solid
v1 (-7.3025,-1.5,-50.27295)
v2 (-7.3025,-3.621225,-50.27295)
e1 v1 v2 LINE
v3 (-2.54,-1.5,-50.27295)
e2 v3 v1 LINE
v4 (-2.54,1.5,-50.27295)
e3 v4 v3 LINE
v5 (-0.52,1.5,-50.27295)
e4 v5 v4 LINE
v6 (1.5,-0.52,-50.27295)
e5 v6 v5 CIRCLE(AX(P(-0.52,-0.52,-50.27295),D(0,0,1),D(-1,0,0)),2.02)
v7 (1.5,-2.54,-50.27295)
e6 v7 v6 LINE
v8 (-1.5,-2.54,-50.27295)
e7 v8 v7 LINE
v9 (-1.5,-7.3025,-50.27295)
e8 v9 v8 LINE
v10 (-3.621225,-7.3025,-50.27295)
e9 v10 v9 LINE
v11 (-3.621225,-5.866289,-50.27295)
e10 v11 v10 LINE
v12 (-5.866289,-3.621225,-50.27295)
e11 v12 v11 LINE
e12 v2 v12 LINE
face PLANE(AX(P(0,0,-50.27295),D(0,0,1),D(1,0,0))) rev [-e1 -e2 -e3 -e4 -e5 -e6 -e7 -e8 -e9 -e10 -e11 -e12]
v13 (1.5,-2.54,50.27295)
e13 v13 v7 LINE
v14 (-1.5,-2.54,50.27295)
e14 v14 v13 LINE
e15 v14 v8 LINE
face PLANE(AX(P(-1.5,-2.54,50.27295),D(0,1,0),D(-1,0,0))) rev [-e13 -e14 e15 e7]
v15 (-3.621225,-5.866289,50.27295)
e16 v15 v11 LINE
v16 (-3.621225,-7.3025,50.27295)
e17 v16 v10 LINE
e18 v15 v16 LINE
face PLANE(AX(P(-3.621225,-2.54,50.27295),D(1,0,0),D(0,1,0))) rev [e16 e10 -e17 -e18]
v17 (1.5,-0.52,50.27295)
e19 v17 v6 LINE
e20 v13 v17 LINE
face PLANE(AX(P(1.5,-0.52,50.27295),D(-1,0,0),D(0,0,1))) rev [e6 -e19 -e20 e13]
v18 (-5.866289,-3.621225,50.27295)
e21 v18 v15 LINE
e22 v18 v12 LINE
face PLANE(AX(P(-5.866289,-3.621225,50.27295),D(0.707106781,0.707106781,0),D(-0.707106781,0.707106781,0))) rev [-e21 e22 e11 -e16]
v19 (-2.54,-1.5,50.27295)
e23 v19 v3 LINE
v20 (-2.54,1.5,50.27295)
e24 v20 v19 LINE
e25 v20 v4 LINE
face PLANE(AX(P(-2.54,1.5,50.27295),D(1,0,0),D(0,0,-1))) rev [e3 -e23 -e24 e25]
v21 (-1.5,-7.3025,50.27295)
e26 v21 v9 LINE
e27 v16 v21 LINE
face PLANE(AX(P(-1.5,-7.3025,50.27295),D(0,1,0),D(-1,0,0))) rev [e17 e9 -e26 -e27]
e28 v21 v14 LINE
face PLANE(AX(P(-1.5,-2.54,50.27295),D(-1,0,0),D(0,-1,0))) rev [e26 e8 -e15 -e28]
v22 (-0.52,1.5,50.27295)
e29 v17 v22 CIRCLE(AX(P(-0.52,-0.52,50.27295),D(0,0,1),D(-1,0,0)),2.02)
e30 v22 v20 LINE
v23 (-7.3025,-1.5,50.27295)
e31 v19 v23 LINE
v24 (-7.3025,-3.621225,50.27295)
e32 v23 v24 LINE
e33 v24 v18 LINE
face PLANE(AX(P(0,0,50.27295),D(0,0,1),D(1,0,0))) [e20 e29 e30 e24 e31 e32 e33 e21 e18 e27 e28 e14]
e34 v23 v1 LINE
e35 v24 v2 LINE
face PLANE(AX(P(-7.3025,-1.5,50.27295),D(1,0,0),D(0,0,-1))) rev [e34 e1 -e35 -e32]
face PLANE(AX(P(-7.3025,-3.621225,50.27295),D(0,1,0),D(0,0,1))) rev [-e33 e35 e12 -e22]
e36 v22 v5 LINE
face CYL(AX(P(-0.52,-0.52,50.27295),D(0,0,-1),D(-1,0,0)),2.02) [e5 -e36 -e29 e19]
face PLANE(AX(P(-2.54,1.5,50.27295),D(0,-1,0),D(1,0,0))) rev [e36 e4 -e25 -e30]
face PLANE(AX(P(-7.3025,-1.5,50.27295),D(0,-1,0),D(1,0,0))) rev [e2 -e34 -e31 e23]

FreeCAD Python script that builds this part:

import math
import FreeCAD as App
import Part
import Sketcher
from FreeCAD import Vector
Q = App.Units.Quantity

doc = App.newDocument("Part")
body = doc.addObject("PartDesign::Body", "Body")

sketch1 = body.newObject("Sketcher::SketchObject", "Sketch")
sketch1.AttachmentSupport = (doc.getObject("XY_Plane"), [""])
sketch1.MapMode = "FlatFace"
sketch1.addGeometry(Part.LineSegment(Vector(-7.3, -1.5, 0), Vector(-7.3, -3.6, 0)), False)
sketch1.addGeometry(Part.LineSegment(Vector(-7.3, -3.6, 0), Vector(-2.5, -3.6, 0)), False)
sketch1.addGeometry(Part.LineSegment(Vector(-2.5, -3.6, 0), Vector(-2.5, -1.5, 0)), False)
sketch1.addGeometry(Part.LineSegment(Vector(-2.5, -1.5, 0), Vector(-7.3, -1.5, 0)), False)
sketch1.addConstraint(Sketcher.Constraint("Coincident", 0, 2, 1, 1))
sketch1.addConstraint(Sketcher.Constraint("Coincident", 1, 2, 2, 1))
sketch1.addConstraint(Sketcher.Constraint("Coincident", 2, 2, 3, 1))
sketch1.addConstraint(Sketcher.Constraint("Coincident", 3, 2, 0, 1))
sketch1.addConstraint(Sketcher.Constraint("Vertical", 0))
sketch1.addConstraint(Sketcher.Constraint("Horizontal", 1))
sketch1.addConstraint(Sketcher.Constraint("Vertical", 2))
sketch1.addConstraint(Sketcher.Constraint("Horizontal", 3))
sketch1.addConstraint(Sketcher.Constraint("DistanceX", 1, 2, -1, 1, Q("0.1 in")))
sketch1.addConstraint(Sketcher.Constraint("DistanceX", 1, 1, 1, 2, Q("0.1875 in")))
sketch1.addConstraint(Sketcher.Constraint("DistanceY", 2, 2, -1, 1, 1.5))
sketch1.addConstraint(Sketcher.Constraint("DistanceY", 0, 2, 0, 1, 2.121225))
pad1 = body.newObject("PartDesign::Pad", "Pad")
pad1.Profile = sketch1
pad1.Length = Q("3.9585 in")
pad1.Midplane = True

sketch2 = body.newObject("Sketcher::SketchObject", "Sketch001")
sketch2.AttachmentSupport = (doc.getObject("XY_Plane"), [""])
sketch2.MapMode = "FlatFace"
sketch2.addGeometry(Part.LineSegment(Vector(-3.6, -2.5, 0), Vector(-3.6, -7.3, 0)), False)
sketch2.addGeometry(Part.LineSegment(Vector(-3.6, -7.3, 0), Vector(-1.5, -7.3, 0)), False)
sketch2.addGeometry(Part.LineSegment(Vector(-1.5, -7.3, 0), Vector(-1.5, -2.5, 0)), False)
sketch2.addGeometry(Part.LineSegment(Vector(-1.5, -2.5, 0), Vector(-3.6, -2.5, 0)), False)
sketch2.addConstraint(Sketcher.Constraint("Coincident", 0, 2, 1, 1))
sketch2.addConstraint(Sketcher.Constraint("Coincident", 1, 2, 2, 1))
sketch2.addConstraint(Sketcher.Constraint("Coincident", 2, 2, 3, 1))
sketch2.addConstraint(Sketcher.Constraint("Coincident", 3, 2, 0, 1))
sketch2.addConstraint(Sketcher.Constraint("Vertical", 0))
sketch2.addConstraint(Sketcher.Constraint("Horizontal", 1))
sketch2.addConstraint(Sketcher.Constraint("Vertical", 2))
sketch2.addConstraint(Sketcher.Constraint("Horizontal", 3))
sketch2.addConstraint(Sketcher.Constraint("DistanceY", 2, 2, -1, 1, Q("0.1 in")))
sketch2.addConstraint(Sketcher.Constraint("DistanceY", 0, 2, 0, 1, Q("0.1875 in")))
sketch2.addConstraint(Sketcher.Constraint("DistanceX", 1, 2, -1, 1, 1.5))
sketch2.addConstraint(Sketcher.Constraint("DistanceX", 1, 1, 1, 2, 2.121225))
pad2 = body.newObject("PartDesign::Pad", "Pad001")
pad2.Profile = sketch2
pad2.Length = Q("3.9585 in")
pad2.Midplane = True

sketch3 = body.newObject("Sketcher::SketchObject", "Sketch002")
sketch3.AttachmentSupport = (doc.getObject("XY_Plane"), [""])
sketch3.MapMode = "FlatFace"
sketch3.addGeometry(Part.LineSegment(Vector(-2.5, 1.5, 0), Vector(-2.5, -1.5, 0)), False)
sketch3.addGeometry(Part.LineSegment(Vector(-2.5, -1.5, 0), Vector(-7.3, -1.5, 0)), False)
sketch3.addGeometry(Part.LineSegment(Vector(-7.3, -1.5, 0), Vector(-7.3, -3.6, 0)), False)
sketch3.addGeometry(Part.LineSegment(Vector(-7.3, -3.6, 0), Vector(-5.9, -3.6, 0)), False)
sketch3.addGeometry(Part.LineSegment(Vector(-5.9, -3.6, 0), Vector(-3.6, -5.9, 0)), False)
sketch3.addGeometry(Part.LineSegment(Vector(-3.6, -5.9, 0), Vector(-3.6, -7.3, 0)), False)
sketch3.addGeometry(Part.LineSegment(Vector(-3.6, -7.3, 0), Vector(-1.5, -7.3, 0)), False)
sketch3.addGeometry(Part.LineSegment(Vector(-1.5, -7.3, 0), Vector(-1.5, -2.5, 0)), False)
sketch3.addGeometry(Part.LineSegment(Vector(-1.5, -2.5, 0), Vector(1.5, -2.5, 0)), False)
sketch3.addGeometry(Part.LineSegment(Vector(1.5, -2.5, 0), Vector(1.5, -0.5, 0)), False)
sketch3.addGeometry(Part.ArcOfCircle(Part.Circle(Vector(-0.5, -0.5, 0), Vector(0, 0, 1), 2), math.radians(0), math.radians(90)), False)
sketch3.addGeometry(Part.LineSegment(Vector(-0.5, 1.5, 0), Vector(-2.5, 1.5, 0)), False)
sketch3.addConstraint(Sketcher.Constraint("Coincident", 0, 2, 1, 1))
sketch3.addConstraint(Sketcher.Constraint("Coincident", 1, 2, 2, 1))
sketch3.addConstraint(Sketcher.Constraint("Coincident", 2, 2, 3, 1))
sketch3.addConstraint(Sketcher.Constraint("Coincident", 3, 2, 4, 1))
sketch3.addConstraint(Sketcher.Constraint("Coincident", 4, 2, 5, 1))
sketch3.addConstraint(Sketcher.Constraint("Coincident", 5, 2, 6, 1))
sketch3.addConstraint(Sketcher.Constraint("Coincident", 6, 2, 7, 1))
sketch3.addConstraint(Sketcher.Constraint("Coincident", 7, 2, 8, 1))
sketch3.addConstraint(Sketcher.Constraint("Coincident", 8, 2, 9, 1))
sketch3.addConstraint(Sketcher.Constraint("Tangent", 9, 2, 10, 1))
sketch3.addConstraint(Sketcher.Constraint("Tangent", 10, 2, 11, 1))
sketch3.addConstraint(Sketcher.Constraint("Coincident", 11, 2, 0, 1))
sketch3.addConstraint(Sketcher.Constraint("Vertical", 0))
sketch3.addConstraint(Sketcher.Constraint("Horizontal", 1))
sketch3.addConstraint(Sketcher.Constraint("Vertical", 2))
sketch3.addConstraint(Sketcher.Constraint("Horizontal", 3))
sketch3.addConstraint(Sketcher.Constraint("Vertical", 5))
sketch3.addConstraint(Sketcher.Constraint("Horizontal", 6))
sketch3.addConstraint(Sketcher.Constraint("Vertical", 7))
sketch3.addConstraint(Sketcher.Constraint("Horizontal", 8))
sketch3.addConstraint(Sketcher.Constraint("Vertical", 9))
sketch3.addConstraint(Sketcher.Constraint("Horizontal", 11))
sketch3.addConstraint(Sketcher.Constraint("Equal", 8, 0))
sketch3.addConstraint(Sketcher.Constraint("Equal", 6, 2))
sketch3.addConstraint(Sketcher.Constraint("Equal", 3, 5))
sketch3.addConstraint(Sketcher.Constraint("Equal", 1, 7))
sketch3.addConstraint(Sketcher.Constraint("Equal", 11, 9))
sketch3.addConstraint(Sketcher.Constraint("DistanceX", 0, 2, -1, 1, Q("0.1 in")))
sketch3.addConstraint(Sketcher.Constraint("DistanceY", 7, 2, -1, 1, Q("0.1 in")))
sketch3.addConstraint(Sketcher.Constraint("DistanceX", 1, 2, 1, 1, Q("0.1875 in")))
sketch3.addConstraint(Sketcher.Constraint("Radius", 10, 2.02))
sketch3.addConstraint(Sketcher.Constraint("Distance", 4, Q("0.125 in")))
sketch3.addConstraint(Sketcher.Constraint("DistanceX", 8, 1, 8, 2, 3.0))
sketch3.addConstraint(Sketcher.Constraint("DistanceX", 11, 2, 11, 1, 2.02))
sketch3.addConstraint(Sketcher.Constraint("DistanceX", 3, 1, 3, 2, 1.436211))
pad3 = body.newObject("PartDesign::Pad", "Pad002")
pad3.Profile = sketch3
pad3.Length = Q("3.9585 in")
pad3.Midplane = True

doc.recompute()
